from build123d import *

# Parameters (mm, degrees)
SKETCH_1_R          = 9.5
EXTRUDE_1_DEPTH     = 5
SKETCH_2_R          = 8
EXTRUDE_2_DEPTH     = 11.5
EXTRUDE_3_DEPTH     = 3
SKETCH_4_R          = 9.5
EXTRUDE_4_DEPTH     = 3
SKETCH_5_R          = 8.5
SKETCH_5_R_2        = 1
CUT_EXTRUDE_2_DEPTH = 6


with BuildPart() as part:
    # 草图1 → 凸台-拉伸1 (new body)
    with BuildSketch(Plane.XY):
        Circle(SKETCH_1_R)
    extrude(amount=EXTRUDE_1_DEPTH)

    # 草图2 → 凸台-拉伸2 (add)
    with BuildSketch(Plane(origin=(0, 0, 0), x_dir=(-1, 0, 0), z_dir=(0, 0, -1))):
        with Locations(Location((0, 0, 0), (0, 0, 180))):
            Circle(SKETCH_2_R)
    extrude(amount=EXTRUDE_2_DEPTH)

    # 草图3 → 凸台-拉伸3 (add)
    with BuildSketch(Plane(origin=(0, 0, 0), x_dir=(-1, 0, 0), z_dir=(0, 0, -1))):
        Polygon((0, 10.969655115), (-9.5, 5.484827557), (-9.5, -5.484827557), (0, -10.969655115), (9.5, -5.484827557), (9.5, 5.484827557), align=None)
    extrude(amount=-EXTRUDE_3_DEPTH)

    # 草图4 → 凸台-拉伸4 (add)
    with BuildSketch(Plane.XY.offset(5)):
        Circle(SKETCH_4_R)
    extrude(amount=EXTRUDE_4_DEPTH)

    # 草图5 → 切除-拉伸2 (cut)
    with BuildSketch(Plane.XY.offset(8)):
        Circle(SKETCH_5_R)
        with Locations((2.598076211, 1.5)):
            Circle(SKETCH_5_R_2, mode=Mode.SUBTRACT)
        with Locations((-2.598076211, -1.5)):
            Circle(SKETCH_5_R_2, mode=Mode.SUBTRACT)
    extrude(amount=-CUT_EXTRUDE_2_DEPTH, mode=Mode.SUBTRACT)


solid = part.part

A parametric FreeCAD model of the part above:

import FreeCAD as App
import Part
import Sketcher
from FreeCAD import Vector
Q = App.Units.Quantity


def add_polygon(sketch, points):
    """Adds a closed chain of lines whose ends are joined by coincident constraints."""
    first, n = sketch.GeometryCount, len(points)
    for a, b in zip(points, points[1:] + points[:1]):
        sketch.addGeometry(Part.LineSegment(App.Vector(*a, 0), App.Vector(*b, 0)), False)
    for i in range(n):
        sketch.addConstraint(Sketcher.Constraint("Coincident", first + i, 2, first + (i + 1) % n, 1))

doc = App.newDocument("Part")
body = doc.addObject("PartDesign::Body", "Body")

sketch1 = doc.addObject("Sketcher::SketchObject", "Sketch")
body.addObject(sketch1)
sketch1.AttachmentSupport = (doc.XY_Plane, [""])
sketch1.MapMode = "FlatFace"
sketch1.addGeometry(Part.Circle(Vector(0, 0, 0), Vector(0, 0, 1), 10), False)
sketch1.addConstraint(Sketcher.Constraint("Coincident", 0, 3, -1, 1))
sketch1.addConstraint(Sketcher.Constraint("Diameter", 0, Q("19 mm")))
pad1 = doc.addObject("PartDesign::Pad", "Pad")
body.addObject(pad1)
pad1.Profile = sketch1
pad1.Length = 5

sketch2 = doc.addObject("Sketcher::SketchObject", "Sketch001")
body.addObject(sketch2)
sketch2.AttachmentSupport = (doc.XY_Plane, [""])
sketch2.MapMode = "FlatFace"
sketch2.addGeometry(Part.Circle(Vector(0, 0, 0), Vector(0, 0, 1), 8), False)
sketch2.addConstraint(Sketcher.Constraint("Coincident", 0, 3, -1, 1))
sketch2.addConstraint(Sketcher.Constraint("Diameter", 0, Q("16 mm")))
pad2 = doc.addObject("PartDesign::Pad", "Pad001")
body.addObject(pad2)
pad2.Profile = sketch2
pad2.Length = 11.5
pad2.Reversed = True

sketch3 = doc.addObject("Sketcher::SketchObject", "Sketch002")
body.addObject(sketch3)
sketch3.AttachmentSupport = (doc.XY_Plane, [""])
sketch3.MapMode = "FlatFace"
add_polygon(sketch3, [(0, 11), (10, 5), (10, -5), (0, -11), (-10, -5), (-10, 5)])
sketch3.addConstraint(Sketcher.Constraint("Vertical", 1))
sketch3.addConstraint(Sketcher.Constraint("Vertical", 4))
sketch3.addConstraint(Sketcher.Constraint("Symmetric", 0, 2, 3, 2, -1, 1))
sketch3.addConstraint(Sketcher.Constraint("Symmetric", 2, 2, 5, 2, -1, 1))
sketch3.addConstraint(Sketcher.Constraint("PointOnObject", 2, 2, -2))
sketch3.addConstraint(Sketcher.Constraint("Parallel", 2, 5))
sketch3.addConstraint(Sketcher.Constraint("Horizontal", 1, 2, 3, 2))
sketch3.addConstraint(Sketcher.Constraint("Angle", 0, Q("-30 deg")))
sketch3.addConstraint(Sketcher.Constraint("DistanceX", 3, 2, 1, 2, Q("19 mm")))
sketch3.addConstraint(Sketcher.Constraint("DistanceY", 1, 2, 1, 1, Q("10.969655 mm")))
pad3 = doc.addObject("PartDesign::Pad", "Pad002")
body.addObject(pad3)
pad3.Profile = sketch3
pad3.Length = 3

sketch4 = doc.addObject("Sketcher::SketchObject", "Sketch003")
body.addObject(sketch4)
sketch4.AttachmentSupport = (doc.XY_Plane, [""])
sketch4.MapMode = "FlatFace"
sketch4.AttachmentOffset = App.Placement(Vector(0, 0, 5), App.Rotation())
sketch4.addGeometry(Part.Circle(Vector(0, 0, 0), Vector(0, 0, 1), 10), False)
sketch4.addConstraint(Sketcher.Constraint("Coincident", 0, 3, -1, 1))
sketch4.addConstraint(Sketcher.Constraint("Diameter", 0, Q("19 mm")))
pad4 = doc.addObject("PartDesign::Pad", "Pad003")
body.addObject(pad4)
pad4.Profile = sketch4
pad4.Length = 3

sketch5 = doc.addObject("Sketcher::SketchObject", "Sketch004")
body.addObject(sketch5)
sketch5.AttachmentSupport = (doc.XY_Plane, [""])
sketch5.MapMode = "FlatFace"
sketch5.AttachmentOffset = App.Placement(Vector(0, 0, 8), App.Rotation())
sketch5.addGeometry(Part.Circle(Vector(0, 0, 0), Vector(0, 0, 1), 8.5), False)
sketch5.addGeometry(Part.Circle(Vector(-2.6, -1.5, 0), Vector(0, 0, 1), 1), False)
sketch5.addGeometry(Part.Circle(Vector(2.6, 1.5, 0), Vector(0, 0, 1), 1), False)
sketch5.addConstraint(Sketcher.Constraint("Coincident", 0, 3, -1, 1))
sketch5.addConstraint(Sketcher.Constraint("Equal", 1, 2))
sketch5.addConstraint(Sketcher.Constraint("Symmetric", 1, 3, 2, 3, -1, 1))
sketch5.addConstraint(Sketcher.Constraint("Diameter", 0, Q("17 mm")))
sketch5.addConstraint(Sketcher.Constraint("Diameter", 1, Q("2 mm")))
sketch5.addConstraint(Sketcher.Constraint("DistanceY", 1, 3, 2, 3, Q("3 mm")))
sketch5.addConstraint(Sketcher.Constraint("DistanceX", 1, 3, -1, 1, Q("2.598076 mm")))
pocket1 = doc.addObject("PartDesign::Pocket", "Pocket")
body.addObject(pocket1)
pocket1.Profile = sketch5
pocket1.Length = 6

doc.recompute()
